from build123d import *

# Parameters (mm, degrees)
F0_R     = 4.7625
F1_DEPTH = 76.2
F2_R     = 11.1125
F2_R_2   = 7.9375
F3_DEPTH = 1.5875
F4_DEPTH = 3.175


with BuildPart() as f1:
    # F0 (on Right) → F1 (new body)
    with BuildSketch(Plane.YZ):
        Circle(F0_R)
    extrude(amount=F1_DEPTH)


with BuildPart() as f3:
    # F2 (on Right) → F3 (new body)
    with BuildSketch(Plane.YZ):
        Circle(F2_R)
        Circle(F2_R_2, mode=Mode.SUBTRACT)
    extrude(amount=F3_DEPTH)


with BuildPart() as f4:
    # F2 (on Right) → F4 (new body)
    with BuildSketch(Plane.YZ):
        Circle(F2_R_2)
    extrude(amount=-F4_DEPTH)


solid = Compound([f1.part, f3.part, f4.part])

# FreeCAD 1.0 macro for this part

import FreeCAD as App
import Part
import Sketcher
from FreeCAD import Vector
Q = App.Units.Quantity

doc = App.newDocument("Part")
body = doc.addObject("PartDesign::Body", "Body")

# Sketch on YZ plane
sketch1 = doc.addObject("Sketcher::SketchObject", "Sketch")
body.addObject(sketch1)
sketch1.AttachmentSupport = (doc.YZ_Plane, [""])
sketch1.MapMode = "FlatFace"
sketch1.addGeometry(Part.Circle(Vector(0, 0, 0), Vector(0, 0, 1), 4.8), False)
sketch1.addConstraint(Sketcher.Constraint("Coincident", 0, 3, -1, 1))
sketch1.addConstraint(Sketcher.Constraint("Diameter", 0, Q("0.375 in")))
pad1 = doc.addObject("PartDesign::Pad", "Pad")
body.addObject(pad1)
pad1.Profile = sketch1
pad1.Length = Q("3 in")
body2 = doc.addObject("PartDesign::Body", "Body001")

# Sketch on YZ plane
sketch2 = doc.addObject("Sketcher::SketchObject", "Sketch001")
body2.addObject(sketch2)
sketch2.AttachmentSupport = (doc.getObject("YZ_Plane001"), [""])
sketch2.MapMode = "FlatFace"
sketch2.addGeometry(Part.Circle(Vector(0, 0, 0), Vector(0, 0, 1), 11), False)
sketch2.addGeometry(Part.Circle(Vector(0, 0, 0), Vector(0, 0, 1), 8), False)
sketch2.addConstraint(Sketcher.Constraint("Coincident", 0, 3, -1, 1))
sketch2.addConstraint(Sketcher.Constraint("Coincident", 1, 3, -1, 1))
sketch2.addConstraint(Sketcher.Constraint("Diameter", 0, Q("0.875 in")))
sketch2.addConstraint(Sketcher.Constraint("Diameter", 1, Q("0.625 in")))
pad2 = doc.addObject("PartDesign::Pad", "Pad001")
body2.addObject(pad2)
pad2.Profile = sketch2
pad2.Length = Q("0.0625 in")
body3 = doc.addObject("PartDesign::Body", "Body002")

# Sketch on YZ plane
sketch3 = doc.addObject("Sketcher::SketchObject", "Sketch002")
body3.addObject(sketch3)
sketch3.AttachmentSupport = (doc.getObject("YZ_Plane002"), [""])
sketch3.MapMode = "FlatFace"
sketch3.addGeometry(Part.Circle(Vector(0, 0, 0), Vector(0, 0, 1), 8), False)
sketch3.addConstraint(Sketcher.Constraint("Coincident", 0, 3, -1, 1))
sketch3.addConstraint(Sketcher.Constraint("Diameter", 0, Q("0.625 in")))
pad3 = doc.addObject("PartDesign::Pad", "Pad002")
body3.addObject(pad3)
pad3.Profile = sketch3
pad3.Length = Q("0.125 in")
pad3.Reversed = True

doc.recompute()
